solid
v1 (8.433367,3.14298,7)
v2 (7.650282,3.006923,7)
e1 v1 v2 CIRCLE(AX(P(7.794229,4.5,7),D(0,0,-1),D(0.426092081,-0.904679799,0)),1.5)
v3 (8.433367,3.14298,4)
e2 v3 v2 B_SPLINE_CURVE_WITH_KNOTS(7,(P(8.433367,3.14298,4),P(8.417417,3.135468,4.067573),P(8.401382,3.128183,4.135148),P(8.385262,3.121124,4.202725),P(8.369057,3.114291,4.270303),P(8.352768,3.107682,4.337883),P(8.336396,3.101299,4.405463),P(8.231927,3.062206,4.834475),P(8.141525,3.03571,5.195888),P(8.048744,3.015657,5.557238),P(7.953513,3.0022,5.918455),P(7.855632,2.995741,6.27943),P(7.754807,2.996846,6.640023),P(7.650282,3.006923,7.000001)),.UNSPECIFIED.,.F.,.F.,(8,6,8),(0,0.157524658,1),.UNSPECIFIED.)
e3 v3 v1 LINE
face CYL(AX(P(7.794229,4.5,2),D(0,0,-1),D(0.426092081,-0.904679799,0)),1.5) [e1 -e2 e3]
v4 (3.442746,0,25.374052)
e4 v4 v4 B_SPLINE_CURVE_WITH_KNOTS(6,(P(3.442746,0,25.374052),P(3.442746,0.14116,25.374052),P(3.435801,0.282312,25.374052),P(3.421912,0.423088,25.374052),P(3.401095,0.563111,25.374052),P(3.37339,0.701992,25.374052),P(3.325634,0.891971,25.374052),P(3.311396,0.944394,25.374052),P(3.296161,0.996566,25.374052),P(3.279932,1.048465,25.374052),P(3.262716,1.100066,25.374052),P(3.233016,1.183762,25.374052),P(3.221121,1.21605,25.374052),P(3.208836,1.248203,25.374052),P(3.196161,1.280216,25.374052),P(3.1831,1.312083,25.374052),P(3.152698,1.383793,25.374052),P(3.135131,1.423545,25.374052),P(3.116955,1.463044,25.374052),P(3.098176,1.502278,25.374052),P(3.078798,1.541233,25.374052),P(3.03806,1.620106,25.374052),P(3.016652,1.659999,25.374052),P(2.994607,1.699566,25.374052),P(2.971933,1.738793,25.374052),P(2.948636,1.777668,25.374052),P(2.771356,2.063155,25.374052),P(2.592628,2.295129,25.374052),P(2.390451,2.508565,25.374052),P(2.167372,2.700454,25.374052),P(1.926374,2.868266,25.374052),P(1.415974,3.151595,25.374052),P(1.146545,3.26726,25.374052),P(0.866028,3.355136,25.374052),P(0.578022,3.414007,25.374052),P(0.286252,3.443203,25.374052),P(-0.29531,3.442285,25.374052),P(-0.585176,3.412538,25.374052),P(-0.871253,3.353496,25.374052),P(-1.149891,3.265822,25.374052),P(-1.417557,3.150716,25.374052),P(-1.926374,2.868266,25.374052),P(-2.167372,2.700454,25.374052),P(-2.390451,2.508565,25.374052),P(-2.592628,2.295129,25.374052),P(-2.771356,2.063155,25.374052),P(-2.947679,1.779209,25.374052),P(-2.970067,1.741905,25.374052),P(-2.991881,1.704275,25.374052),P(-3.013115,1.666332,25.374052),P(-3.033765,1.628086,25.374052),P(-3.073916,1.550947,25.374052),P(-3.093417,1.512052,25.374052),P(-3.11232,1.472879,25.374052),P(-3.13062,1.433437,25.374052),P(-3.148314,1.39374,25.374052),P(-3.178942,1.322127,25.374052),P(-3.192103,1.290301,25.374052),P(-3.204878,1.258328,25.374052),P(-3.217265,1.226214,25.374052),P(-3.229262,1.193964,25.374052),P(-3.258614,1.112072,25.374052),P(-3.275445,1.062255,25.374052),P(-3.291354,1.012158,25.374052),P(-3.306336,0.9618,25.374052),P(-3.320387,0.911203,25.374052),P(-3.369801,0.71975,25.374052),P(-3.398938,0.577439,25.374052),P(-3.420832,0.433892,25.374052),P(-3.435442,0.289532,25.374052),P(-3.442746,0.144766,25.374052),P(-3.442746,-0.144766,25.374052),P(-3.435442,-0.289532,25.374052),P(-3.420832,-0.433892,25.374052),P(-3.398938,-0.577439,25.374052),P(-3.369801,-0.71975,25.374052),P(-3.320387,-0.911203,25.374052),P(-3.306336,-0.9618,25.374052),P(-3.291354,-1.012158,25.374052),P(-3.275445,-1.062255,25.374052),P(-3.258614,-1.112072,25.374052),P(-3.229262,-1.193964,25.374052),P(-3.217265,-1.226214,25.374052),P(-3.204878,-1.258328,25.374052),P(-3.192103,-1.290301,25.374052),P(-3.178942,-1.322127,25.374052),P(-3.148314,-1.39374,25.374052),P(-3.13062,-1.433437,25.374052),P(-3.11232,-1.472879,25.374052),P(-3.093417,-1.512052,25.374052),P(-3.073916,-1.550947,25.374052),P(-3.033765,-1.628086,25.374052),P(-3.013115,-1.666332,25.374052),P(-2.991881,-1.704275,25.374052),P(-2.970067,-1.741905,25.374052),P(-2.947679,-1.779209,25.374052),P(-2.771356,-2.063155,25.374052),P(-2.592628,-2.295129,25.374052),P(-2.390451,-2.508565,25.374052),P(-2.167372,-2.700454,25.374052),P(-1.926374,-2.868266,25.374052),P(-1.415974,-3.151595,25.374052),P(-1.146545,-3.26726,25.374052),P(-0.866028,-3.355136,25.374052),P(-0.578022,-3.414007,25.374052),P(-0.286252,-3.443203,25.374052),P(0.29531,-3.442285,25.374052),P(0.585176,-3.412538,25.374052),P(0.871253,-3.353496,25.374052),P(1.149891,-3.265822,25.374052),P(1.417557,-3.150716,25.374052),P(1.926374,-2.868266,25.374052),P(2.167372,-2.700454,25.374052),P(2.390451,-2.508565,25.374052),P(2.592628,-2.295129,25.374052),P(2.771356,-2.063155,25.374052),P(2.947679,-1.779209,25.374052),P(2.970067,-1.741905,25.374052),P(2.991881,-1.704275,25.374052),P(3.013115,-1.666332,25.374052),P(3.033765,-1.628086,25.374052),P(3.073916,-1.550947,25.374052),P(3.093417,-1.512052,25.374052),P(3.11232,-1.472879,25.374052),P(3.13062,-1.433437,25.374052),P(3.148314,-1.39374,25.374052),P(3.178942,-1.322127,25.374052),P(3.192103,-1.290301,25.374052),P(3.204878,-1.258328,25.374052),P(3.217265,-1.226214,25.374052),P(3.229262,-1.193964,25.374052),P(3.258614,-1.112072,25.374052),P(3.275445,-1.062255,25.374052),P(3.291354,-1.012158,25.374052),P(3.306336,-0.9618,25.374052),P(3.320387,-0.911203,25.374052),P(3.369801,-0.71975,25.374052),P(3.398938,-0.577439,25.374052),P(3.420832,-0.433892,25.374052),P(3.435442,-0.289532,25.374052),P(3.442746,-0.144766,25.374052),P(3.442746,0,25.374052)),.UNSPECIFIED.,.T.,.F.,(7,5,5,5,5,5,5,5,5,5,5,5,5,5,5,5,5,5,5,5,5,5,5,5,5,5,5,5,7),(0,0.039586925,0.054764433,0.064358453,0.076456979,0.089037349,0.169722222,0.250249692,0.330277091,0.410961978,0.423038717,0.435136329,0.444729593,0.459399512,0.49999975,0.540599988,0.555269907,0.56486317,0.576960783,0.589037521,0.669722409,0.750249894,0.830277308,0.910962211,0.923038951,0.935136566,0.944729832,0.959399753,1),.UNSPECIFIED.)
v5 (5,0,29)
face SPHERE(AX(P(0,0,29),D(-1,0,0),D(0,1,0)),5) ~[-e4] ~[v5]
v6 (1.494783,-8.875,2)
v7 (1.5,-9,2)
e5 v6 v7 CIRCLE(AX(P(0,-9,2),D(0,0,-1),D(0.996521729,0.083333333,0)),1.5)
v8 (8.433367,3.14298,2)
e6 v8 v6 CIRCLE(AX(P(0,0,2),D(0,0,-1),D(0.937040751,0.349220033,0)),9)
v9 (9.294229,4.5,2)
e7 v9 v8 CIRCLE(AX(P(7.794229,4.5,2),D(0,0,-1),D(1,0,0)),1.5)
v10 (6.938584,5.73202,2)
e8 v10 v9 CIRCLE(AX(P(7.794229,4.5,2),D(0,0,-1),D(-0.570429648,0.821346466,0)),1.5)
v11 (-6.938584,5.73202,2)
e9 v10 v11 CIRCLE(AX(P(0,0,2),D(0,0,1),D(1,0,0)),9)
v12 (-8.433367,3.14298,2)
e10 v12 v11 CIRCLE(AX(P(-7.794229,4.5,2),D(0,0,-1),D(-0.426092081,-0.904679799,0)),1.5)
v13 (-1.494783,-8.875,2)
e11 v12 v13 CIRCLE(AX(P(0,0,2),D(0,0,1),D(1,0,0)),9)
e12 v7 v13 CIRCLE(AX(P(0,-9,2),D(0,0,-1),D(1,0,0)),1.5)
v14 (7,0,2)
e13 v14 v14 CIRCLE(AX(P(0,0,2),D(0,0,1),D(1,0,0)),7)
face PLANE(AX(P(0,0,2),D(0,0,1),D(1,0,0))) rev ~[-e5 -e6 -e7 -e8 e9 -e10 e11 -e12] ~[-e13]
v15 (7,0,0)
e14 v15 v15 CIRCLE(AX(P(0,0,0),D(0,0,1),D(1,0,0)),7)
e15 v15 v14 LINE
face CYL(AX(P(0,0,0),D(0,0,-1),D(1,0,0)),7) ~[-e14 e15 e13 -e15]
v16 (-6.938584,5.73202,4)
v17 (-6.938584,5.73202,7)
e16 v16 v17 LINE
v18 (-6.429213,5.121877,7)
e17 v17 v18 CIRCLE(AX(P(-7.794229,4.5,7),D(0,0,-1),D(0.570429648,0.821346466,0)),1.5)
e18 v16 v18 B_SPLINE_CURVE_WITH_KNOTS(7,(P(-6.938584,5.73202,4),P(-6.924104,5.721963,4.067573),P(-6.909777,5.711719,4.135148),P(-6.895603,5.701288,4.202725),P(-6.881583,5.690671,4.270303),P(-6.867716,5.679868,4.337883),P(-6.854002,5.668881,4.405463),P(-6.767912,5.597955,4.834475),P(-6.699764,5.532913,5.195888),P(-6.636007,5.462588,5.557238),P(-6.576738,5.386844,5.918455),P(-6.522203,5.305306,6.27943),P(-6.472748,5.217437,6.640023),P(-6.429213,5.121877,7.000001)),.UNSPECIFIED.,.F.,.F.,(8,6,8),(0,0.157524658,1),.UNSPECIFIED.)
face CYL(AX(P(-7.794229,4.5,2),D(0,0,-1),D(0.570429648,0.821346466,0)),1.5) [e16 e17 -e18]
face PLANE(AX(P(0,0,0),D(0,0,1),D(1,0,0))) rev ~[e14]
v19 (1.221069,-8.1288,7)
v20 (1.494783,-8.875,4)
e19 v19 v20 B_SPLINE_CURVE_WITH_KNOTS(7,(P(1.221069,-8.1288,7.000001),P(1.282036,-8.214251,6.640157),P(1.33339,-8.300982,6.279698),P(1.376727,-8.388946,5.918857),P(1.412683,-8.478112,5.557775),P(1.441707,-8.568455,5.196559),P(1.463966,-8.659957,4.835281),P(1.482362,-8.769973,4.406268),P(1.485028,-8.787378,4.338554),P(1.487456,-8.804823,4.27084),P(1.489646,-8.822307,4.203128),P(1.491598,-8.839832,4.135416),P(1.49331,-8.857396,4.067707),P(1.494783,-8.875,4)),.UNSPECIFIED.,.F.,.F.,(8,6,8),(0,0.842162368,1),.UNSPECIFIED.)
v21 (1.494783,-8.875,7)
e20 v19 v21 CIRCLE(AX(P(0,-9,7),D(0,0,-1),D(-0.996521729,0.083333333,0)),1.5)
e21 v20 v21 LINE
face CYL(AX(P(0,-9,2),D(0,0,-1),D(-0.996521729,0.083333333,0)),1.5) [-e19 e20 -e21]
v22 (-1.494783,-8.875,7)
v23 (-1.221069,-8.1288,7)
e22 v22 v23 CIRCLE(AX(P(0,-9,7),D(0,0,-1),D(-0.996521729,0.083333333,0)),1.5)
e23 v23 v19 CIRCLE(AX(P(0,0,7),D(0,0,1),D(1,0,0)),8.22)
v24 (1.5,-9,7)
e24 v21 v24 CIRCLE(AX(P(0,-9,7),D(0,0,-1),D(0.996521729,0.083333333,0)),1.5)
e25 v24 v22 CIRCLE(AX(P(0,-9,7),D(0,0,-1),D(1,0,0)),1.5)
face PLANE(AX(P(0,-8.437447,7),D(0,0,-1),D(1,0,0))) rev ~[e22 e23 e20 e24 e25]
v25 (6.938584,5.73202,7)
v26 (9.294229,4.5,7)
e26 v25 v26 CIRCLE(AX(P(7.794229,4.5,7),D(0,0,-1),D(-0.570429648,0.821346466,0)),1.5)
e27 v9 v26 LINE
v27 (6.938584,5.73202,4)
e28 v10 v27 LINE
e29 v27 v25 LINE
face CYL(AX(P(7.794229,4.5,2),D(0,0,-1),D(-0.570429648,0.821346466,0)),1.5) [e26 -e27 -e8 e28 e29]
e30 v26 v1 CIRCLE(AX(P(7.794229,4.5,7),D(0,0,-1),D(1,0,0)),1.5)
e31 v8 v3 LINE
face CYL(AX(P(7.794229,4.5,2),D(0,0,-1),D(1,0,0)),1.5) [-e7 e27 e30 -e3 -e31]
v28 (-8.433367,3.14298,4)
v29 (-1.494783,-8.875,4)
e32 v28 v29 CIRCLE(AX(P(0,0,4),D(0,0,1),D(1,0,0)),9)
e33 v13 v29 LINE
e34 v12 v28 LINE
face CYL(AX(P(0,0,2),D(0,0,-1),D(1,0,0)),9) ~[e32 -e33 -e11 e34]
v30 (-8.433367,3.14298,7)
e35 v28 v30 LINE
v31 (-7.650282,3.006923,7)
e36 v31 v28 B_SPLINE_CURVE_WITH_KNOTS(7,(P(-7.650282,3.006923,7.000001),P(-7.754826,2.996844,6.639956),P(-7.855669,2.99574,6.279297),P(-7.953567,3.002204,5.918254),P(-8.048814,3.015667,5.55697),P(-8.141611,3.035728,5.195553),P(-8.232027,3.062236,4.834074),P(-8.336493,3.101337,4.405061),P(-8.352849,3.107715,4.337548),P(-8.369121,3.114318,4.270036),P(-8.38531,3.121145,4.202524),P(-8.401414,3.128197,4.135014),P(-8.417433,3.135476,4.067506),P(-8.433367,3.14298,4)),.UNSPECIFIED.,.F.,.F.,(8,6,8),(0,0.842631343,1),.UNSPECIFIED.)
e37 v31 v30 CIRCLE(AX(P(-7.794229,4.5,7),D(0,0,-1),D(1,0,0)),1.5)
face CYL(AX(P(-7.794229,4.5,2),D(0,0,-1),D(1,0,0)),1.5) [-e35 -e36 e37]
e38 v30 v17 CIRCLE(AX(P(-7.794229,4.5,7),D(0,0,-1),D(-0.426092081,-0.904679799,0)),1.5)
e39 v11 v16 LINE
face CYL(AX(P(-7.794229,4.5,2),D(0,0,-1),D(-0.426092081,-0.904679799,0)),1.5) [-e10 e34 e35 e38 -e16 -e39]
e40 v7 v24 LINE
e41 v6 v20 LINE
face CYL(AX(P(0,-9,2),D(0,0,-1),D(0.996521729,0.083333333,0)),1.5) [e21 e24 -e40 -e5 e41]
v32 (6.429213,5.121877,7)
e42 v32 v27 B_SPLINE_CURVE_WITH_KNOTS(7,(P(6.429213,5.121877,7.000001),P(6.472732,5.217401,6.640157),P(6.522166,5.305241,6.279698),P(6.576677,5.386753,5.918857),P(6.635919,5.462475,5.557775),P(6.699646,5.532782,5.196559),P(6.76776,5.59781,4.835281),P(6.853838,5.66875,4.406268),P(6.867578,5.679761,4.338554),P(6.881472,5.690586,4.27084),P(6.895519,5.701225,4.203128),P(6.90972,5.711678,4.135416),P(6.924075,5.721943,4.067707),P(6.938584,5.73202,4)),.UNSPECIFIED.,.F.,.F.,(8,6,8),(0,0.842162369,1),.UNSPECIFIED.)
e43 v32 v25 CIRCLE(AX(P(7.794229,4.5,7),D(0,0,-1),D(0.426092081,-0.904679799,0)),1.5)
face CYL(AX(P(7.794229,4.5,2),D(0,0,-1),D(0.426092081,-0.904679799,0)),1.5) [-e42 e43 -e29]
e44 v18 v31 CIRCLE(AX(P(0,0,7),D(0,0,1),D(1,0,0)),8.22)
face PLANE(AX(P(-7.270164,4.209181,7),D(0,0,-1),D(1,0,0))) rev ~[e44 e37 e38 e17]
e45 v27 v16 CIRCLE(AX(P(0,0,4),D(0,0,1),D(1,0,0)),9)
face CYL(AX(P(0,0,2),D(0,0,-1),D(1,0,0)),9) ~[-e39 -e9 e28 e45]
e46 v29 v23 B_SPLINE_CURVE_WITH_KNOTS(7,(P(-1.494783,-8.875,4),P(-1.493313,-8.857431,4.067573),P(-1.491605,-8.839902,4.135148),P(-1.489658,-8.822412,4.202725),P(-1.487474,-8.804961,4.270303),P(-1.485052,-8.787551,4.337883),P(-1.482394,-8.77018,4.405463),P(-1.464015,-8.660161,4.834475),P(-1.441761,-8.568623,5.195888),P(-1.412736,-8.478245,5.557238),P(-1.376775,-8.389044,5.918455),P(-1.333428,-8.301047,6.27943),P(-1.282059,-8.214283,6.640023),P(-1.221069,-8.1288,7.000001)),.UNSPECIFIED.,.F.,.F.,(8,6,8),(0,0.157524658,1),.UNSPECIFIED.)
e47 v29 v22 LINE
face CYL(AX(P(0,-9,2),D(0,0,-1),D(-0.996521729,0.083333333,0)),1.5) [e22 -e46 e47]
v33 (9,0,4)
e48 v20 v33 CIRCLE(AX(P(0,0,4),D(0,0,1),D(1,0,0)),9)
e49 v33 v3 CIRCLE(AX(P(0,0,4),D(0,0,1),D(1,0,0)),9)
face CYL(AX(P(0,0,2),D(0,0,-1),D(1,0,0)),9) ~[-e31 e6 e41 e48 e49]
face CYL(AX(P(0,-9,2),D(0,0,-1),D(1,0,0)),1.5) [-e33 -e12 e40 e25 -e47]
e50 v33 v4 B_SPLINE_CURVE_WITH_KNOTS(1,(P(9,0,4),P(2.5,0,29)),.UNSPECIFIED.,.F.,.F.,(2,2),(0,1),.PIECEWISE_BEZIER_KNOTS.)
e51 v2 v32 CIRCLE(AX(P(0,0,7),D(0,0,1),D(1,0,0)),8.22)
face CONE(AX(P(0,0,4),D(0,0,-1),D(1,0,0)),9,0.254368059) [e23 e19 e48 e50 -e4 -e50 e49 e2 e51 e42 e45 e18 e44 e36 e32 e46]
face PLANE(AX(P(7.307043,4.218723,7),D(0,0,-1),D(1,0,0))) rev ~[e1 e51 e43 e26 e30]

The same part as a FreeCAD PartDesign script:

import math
import FreeCAD as App
import Part
import Sketcher

V = App.Vector
Q = App.Units.Quantity

doc = App.newDocument("Part")
params = doc.addObject("Spreadsheet::Sheet", "Params")
for row, (alias, value) in enumerate([
    ("sketch1_diameter", "14 mm"),
    ("pad1_length", "2 mm"),
    ("sketch2_diameter", "18 mm"),
    ("pad2_length", "2 mm"),
    ("sketch3_diameter", "18 mm"),
    ("sketch4_diameter", "5 mm"),
    ("sketch5_radius", "5 mm"),
    ("sketch5_radius2", "2.5 mm"),
    ("revolution_angle", "360 deg"),
    ("sketch6_radius", "1.5 mm"),
    ("pad3_length", "5 mm"),
], start=1):
    params.set(f"A{row}", alias)
    params.set(f"B{row}", "=" + value)
    params.setAlias(f"B{row}", alias)

body = doc.addObject("PartDesign::Body", "Body")

# Sketch on XY plane
sketch1 = doc.addObject("Sketcher::SketchObject", "Sketch")
body.addObject(sketch1)
sketch1.AttachmentSupport = (doc.XY_Plane, [""])
sketch1.MapMode = "FlatFace"
sketch1.addGeometry(Part.Circle(V(0, 0, 0), V(0, 0, 1), 7), False)
sketch1.addConstraint([
    Sketcher.Constraint("Coincident", 0, 3, -1, 1),
    Sketcher.Constraint("Diameter", 0, Q("14 mm")),
])
sketch1.setExpression("Constraints[1]", "Params.sketch1_diameter")
pad1 = doc.addObject("PartDesign::Pad", "Pad")
body.addObject(pad1)
pad1.Profile = sketch1
pad1.setExpression("Length", "Params.pad1_length")

# Sketch on XY plane
sketch2 = doc.addObject("Sketcher::SketchObject", "Sketch001")
body.addObject(sketch2)
sketch2.AttachmentSupport = (doc.XY_Plane, [""])
sketch2.MapMode = "FlatFace"
sketch2.AttachmentOffset = App.Placement(V(0, 0, 2), App.Rotation())
sketch2.addGeometry(Part.Circle(V(0, 0, 0), V(0, 0, 1), 9), False)
sketch2.addConstraint([
    Sketcher.Constraint("Coincident", 0, 3, -1, 1),
    Sketcher.Constraint("Diameter", 0, Q("18 mm")),
])
sketch2.setExpression("Constraints[1]", "Params.sketch2_diameter")
pad2 = doc.addObject("PartDesign::Pad", "Pad001")
body.addObject(pad2)
pad2.Profile = sketch2
pad2.setExpression("Length", "Params.pad2_length")

# Sketch on XY plane
sketch3 = doc.addObject("Sketcher::SketchObject", "Sketch002")
body.addObject(sketch3)
sketch3.AttachmentSupport = (doc.XY_Plane, [""])
sketch3.MapMode = "FlatFace"
sketch3.AttachmentOffset = App.Placement(V(0, 0, 4), App.Rotation())
sketch3.addGeometry(Part.Circle(V(0, 0, 0), V(0, 0, 1), 9), False)
sketch3.addConstraint([
    Sketcher.Constraint("Coincident", 0, 3, -1, 1),
    Sketcher.Constraint("Diameter", 0, Q("18 mm")),
])
sketch3.setExpression("Constraints[1]", "Params.sketch3_diameter")

# Sketch on XY plane
sketch4 = doc.addObject("Sketcher::SketchObject", "Sketch003")
body.addObject(sketch4)
sketch4.AttachmentSupport = (doc.XY_Plane, [""])
sketch4.MapMode = "FlatFace"
sketch4.AttachmentOffset = App.Placement(V(0, 0, 29), App.Rotation())
sketch4.addGeometry(Part.Circle(V(0, 0, 0), V(0, 0, 1), 2.5), False)
sketch4.addConstraint([
    Sketcher.Constraint("Coincident", 0, 3, -1, 1),
    Sketcher.Constraint("Diameter", 0, Q("5 mm")),
])
sketch4.setExpression("Constraints[1]", "Params.sketch4_diameter")

additiveloft = doc.addObject("PartDesign::AdditiveLoft", "AdditiveLoft")
body.addObject(additiveloft)
additiveloft.Profile = sketch3
additiveloft.Sections = [sketch4]

# Sketch on XY plane
sketch5 = doc.addObject("Sketcher::SketchObject", "Sketch004")
body.addObject(sketch5)
sketch5.AttachmentSupport = (doc.XY_Plane, [""])
sketch5.MapMode = "FlatFace"
sketch5.AttachmentOffset = App.Placement(V(0, 0, 29), App.Rotation())
sketch5.addGeometry([
    Part.LineSegment(V(2.5, 0, 0), V(5, 0, 0)),  # 0
    Part.ArcOfCircle(Part.Circle(V(0, 0, 0), V(0, 0, 1), 5), math.radians(0), math.radians(180)),  # 1
    Part.LineSegment(V(-5, 0, 0), V(-2.5, 0, 0)),  # 2
    Part.ArcOfCircle(Part.Circle(V(0, 0, 0), V(0, 0, 1), 2.5), math.radians(0), math.radians(180)),  # 3
    Part.ArcOfCircle(Part.Circle(V(0, 0, 0), V(0, 0, 1), 2.5), math.radians(180), math.radians(360)),  # 4
    Part.LineSegment(V(2.5, 0, 0), V(-2.5, 0, 0)),  # 5
], False)
sketch5.addConstraint([
    Sketcher.Constraint("Coincident", 0, 2, 1, 1),
    Sketcher.Constraint("Coincident", 1, 2, 2, 1),
    Sketcher.Constraint("Coincident", 2, 2, 3, 2),
    Sketcher.Constraint("Coincident", 3, 1, 0, 1),
    Sketcher.Constraint("Coincident", 4, 1, 5, 2),
    Sketcher.Constraint("Coincident", 5, 1, 4, 2),
    Sketcher.Constraint("Horizontal", 0),
    Sketcher.Constraint("Horizontal", 2),
    Sketcher.Constraint("Horizontal", 5),
    Sketcher.Constraint("Coincident", 1, 3, -1, 1),
    Sketcher.Constraint("Coincident", 3, 3, -1, 1),
    Sketcher.Constraint("Coincident", 4, 3, -1, 1),
    Sketcher.Constraint("Coincident", 4, 1, 2, 2),
    Sketcher.Constraint("PointOnObject", 0, 2, -1),
    Sketcher.Constraint("PointOnObject", 1, 2, -1),
    Sketcher.Constraint("Radius", 1, Q("5 mm")),
    Sketcher.Constraint("Radius", 3, Q("2.5 mm")),
])
sketch5.setExpression("Constraints[15]", "Params.sketch5_radius")
sketch5.setExpression("Constraints[16]", "Params.sketch5_radius2")
revolution = doc.addObject("PartDesign::Revolution", "Revolution")
body.addObject(revolution)
revolution.Profile = sketch5
revolution.ReferenceAxis = (sketch5, ["H_Axis"])
revolution.setExpression("Angle", "Params.revolution_angle")

# Sketch on XY plane
sketch6 = doc.addObject("Sketcher::SketchObject", "Sketch005")
body.addObject(sketch6)
sketch6.AttachmentSupport = (doc.XY_Plane, [""])
sketch6.MapMode = "FlatFace"
sketch6.AttachmentOffset = App.Placement(V(0, 0, 2), App.Rotation())
sketch6.addGeometry([
    Part.ArcOfCircle(Part.Circle(V(0, -9, 0), V(0, 0, 1), 1.5), math.radians(5), math.radians(175)),  # 0
    Part.ArcOfCircle(Part.Circle(V(0, -9, 0), V(0, 0, 1), 1.5), math.radians(0), math.radians(4.78)),  # 1
    Part.ArcOfCircle(Part.Circle(V(0, -9, 0), V(0, 0, 1), 1.5), math.radians(175), math.radians(360)),  # 2
    Part.ArcOfCircle(Part.Circle(V(-7.79, 4.5, 0), V(0, 0, 1), 1.5), math.radians(-115), math.radians(0)),  # 3
    Part.ArcOfCircle(Part.Circle(V(-7.79, 4.5, 0), V(0, 0, 1), 1.5), math.radians(55), math.radians(245)),  # 4
    Part.ArcOfCircle(Part.Circle(V(-7.79, 4.5, 0), V(0, 0, 1), 1.5), math.radians(0), math.radians(55)),  # 5
    Part.ArcOfCircle(Part.Circle(V(7.79, 4.5, 0), V(0, 0, 1), 1.5), math.radians(125), math.radians(295)),  # 6
    Part.ArcOfCircle(Part.Circle(V(7.79, 4.5, 0), V(0, 0, 1), 1.5), math.radians(0), math.radians(125)),  # 7
    Part.ArcOfCircle(Part.Circle(V(7.79, 4.5, 0), V(0, 0, 1), 1.5), math.radians(-65), math.radians(0)),  # 8
], False)
sketch6.addConstraint([
    Sketcher.Constraint("Tangent", 0, 1, 1, 2),
    Sketcher.Constraint("Tangent", 1, 1, 2, 2),
    Sketcher.Constraint("Tangent", 2, 1, 0, 2),
    Sketcher.Constraint("Tangent", 3, 1, 4, 2),
    Sketcher.Constraint("Tangent", 4, 1, 5, 2),
    Sketcher.Constraint("Tangent", 5, 1, 3, 2),
    Sketcher.Constraint("Tangent", 6, 1, 7, 2),
    Sketcher.Constraint("Tangent", 7, 1, 8, 2),
    Sketcher.Constraint("Tangent", 8, 1, 6, 2),
    Sketcher.Constraint("Equal", 2, 3),
    Sketcher.Constraint("Equal", 5, 6),
    Sketcher.Constraint("Symmetric", 3, 3, 6, 3, -2),
    Sketcher.Constraint("Symmetric", 0, 1, 2, 1, -2),
    Sketcher.Constraint("Horizontal", 2, 3, 1, 1),
    Sketcher.Constraint("Horizontal", 8, 3, 5, 1),
    Sketcher.Constraint("Horizontal", 4, 1, 6, 1),
    Sketcher.Constraint("Horizontal", 5, 1, 7, 1),
    Sketcher.Constraint("Horizontal", 3, 1, 8, 1),
    Sketcher.Constraint("Radius", 0, Q("1.5 mm")),
    Sketcher.Constraint("DistanceY", 0, 3, -1, 1, Q("9 mm")),
    Sketcher.Constraint("DistanceY", -1, 1, 3, 3, Q("4.5 mm")),
    Sketcher.Constraint("DistanceY", 0, 1, -1, 1, Q("8.875 mm")),
    Sketcher.Constraint("DistanceX", 3, 3, -1, 1, Q("7.794229 mm")),
    Sketcher.Constraint("DistanceY", -1, 1, 3, 1, Q("3.14298 mm")),
    Sketcher.Constraint("DistanceY", -1, 1, 4, 1, Q("5.73202 mm")),
])
sketch6.setExpression("Constraints[18]", "Params.sketch6_radius")
pad3 = doc.addObject("PartDesign::Pad", "Pad002")
body.addObject(pad3)
pad3.Profile = sketch6
pad3.setExpression("Length", "Params.pad3_length")

doc.recompute()
